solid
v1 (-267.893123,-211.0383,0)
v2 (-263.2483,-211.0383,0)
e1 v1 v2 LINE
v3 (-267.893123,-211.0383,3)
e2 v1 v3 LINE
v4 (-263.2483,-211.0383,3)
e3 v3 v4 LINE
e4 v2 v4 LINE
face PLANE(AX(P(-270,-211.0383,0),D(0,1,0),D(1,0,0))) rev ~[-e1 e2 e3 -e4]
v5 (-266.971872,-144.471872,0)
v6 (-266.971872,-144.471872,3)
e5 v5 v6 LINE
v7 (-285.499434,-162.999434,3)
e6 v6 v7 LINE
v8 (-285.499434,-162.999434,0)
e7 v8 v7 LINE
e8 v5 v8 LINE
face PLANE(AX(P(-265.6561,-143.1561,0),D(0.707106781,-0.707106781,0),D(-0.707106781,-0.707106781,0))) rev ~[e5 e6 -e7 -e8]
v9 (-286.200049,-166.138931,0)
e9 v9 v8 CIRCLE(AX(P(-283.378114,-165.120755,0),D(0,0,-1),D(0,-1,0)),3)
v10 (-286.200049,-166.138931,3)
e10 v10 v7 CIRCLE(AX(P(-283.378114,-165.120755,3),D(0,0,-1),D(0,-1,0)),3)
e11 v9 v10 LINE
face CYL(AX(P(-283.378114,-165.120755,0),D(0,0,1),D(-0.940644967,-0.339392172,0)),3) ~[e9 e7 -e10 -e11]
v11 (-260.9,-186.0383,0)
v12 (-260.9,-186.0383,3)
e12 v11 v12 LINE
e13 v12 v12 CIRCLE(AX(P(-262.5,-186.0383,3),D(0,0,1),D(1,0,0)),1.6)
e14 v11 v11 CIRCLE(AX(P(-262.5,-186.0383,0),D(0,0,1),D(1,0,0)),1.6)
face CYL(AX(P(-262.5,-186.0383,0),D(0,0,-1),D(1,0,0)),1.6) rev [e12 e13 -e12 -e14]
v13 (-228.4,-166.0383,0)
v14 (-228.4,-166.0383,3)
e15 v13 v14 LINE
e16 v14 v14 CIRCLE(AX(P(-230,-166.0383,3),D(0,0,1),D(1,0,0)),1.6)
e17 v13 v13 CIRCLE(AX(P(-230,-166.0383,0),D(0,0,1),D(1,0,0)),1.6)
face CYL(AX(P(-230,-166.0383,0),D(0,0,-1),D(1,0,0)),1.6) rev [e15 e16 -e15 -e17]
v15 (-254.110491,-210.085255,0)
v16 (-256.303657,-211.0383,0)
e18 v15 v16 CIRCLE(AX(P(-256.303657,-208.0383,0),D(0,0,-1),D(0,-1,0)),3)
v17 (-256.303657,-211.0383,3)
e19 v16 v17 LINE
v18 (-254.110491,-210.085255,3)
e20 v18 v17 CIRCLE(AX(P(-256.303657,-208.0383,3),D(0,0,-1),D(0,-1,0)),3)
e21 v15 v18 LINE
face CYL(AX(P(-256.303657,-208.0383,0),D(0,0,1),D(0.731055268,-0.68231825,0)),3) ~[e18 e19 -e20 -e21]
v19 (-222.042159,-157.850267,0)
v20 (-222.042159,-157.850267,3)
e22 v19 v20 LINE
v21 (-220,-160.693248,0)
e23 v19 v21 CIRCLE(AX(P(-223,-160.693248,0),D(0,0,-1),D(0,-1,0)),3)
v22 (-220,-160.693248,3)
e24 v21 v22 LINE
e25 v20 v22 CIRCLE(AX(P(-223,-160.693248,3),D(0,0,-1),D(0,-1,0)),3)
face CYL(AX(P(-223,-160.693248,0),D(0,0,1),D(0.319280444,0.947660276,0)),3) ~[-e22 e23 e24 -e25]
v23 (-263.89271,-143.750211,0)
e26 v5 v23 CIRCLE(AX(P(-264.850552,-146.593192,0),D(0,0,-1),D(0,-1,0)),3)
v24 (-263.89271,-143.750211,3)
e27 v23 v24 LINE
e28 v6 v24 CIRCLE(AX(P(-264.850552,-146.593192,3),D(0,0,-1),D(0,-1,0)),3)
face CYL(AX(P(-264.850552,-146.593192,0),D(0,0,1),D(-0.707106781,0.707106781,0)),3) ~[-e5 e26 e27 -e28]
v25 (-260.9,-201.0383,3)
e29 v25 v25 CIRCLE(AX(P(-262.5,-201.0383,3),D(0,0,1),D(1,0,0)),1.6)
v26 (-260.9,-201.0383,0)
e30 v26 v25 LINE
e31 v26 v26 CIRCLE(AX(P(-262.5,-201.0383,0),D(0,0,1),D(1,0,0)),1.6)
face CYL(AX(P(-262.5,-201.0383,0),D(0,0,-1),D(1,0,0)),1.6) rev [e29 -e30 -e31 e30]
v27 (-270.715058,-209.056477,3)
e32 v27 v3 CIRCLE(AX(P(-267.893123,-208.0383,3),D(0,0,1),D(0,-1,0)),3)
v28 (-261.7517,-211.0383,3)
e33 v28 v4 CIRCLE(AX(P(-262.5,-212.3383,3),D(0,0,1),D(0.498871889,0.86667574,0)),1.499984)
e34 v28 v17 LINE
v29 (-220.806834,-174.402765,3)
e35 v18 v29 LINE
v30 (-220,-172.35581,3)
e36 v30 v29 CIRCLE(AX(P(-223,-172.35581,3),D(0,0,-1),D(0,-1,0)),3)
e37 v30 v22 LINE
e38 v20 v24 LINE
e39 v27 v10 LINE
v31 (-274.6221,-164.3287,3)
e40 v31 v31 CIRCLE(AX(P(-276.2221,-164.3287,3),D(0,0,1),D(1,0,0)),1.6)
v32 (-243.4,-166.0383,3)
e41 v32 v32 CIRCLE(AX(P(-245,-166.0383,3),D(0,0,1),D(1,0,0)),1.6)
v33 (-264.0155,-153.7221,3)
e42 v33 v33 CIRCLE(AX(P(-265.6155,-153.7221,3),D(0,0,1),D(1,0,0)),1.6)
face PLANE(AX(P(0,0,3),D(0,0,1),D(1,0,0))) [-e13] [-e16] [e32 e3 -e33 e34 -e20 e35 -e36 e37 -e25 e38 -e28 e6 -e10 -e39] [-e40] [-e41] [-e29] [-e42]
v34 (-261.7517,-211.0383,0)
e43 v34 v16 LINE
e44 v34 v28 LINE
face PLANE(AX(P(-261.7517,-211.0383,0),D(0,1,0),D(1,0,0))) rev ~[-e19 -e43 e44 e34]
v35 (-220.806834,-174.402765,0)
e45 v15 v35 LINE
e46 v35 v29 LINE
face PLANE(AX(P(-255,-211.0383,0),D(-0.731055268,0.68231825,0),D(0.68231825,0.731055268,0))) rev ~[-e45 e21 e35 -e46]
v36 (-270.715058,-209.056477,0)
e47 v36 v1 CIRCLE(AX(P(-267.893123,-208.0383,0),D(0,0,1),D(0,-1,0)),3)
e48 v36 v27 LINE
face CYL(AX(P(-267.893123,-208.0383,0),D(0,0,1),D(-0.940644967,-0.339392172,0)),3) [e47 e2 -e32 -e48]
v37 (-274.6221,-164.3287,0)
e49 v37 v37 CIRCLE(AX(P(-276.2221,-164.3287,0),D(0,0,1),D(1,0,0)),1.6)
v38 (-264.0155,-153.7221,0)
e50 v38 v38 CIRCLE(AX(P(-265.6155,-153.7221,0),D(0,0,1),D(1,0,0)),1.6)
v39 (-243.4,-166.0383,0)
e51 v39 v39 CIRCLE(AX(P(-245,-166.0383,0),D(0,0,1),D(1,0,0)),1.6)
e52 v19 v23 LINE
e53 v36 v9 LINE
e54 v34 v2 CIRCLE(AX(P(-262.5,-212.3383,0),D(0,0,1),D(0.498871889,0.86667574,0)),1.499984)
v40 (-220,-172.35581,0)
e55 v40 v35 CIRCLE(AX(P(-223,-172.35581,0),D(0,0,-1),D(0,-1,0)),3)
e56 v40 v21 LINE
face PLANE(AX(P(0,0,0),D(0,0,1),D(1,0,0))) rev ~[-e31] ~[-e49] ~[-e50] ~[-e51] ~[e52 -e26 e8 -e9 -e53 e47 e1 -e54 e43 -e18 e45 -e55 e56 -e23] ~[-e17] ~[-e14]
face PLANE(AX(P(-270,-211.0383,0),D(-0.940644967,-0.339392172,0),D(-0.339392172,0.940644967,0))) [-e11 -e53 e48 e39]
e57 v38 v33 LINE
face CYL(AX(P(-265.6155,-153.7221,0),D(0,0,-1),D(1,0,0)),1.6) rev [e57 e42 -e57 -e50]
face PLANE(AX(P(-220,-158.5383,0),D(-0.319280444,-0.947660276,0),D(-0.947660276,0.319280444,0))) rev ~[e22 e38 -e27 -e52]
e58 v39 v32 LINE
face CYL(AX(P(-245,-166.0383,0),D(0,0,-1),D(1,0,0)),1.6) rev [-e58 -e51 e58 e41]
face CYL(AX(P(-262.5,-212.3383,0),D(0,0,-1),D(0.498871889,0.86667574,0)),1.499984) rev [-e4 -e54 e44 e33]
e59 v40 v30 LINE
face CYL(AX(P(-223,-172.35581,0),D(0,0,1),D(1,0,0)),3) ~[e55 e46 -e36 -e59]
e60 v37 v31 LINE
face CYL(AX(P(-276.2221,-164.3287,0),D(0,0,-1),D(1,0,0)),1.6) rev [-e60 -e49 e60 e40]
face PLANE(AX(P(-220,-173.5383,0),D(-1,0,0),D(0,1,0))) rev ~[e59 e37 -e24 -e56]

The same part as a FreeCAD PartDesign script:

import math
import FreeCAD as App
import Part
import Sketcher

V = App.Vector
Q = App.Units.Quantity


def edges_at(feature, points):
    """Names of the edges that pass closest to the given points."""
    edges = feature.Shape.Edges
    near = lambda p: min(range(len(edges)), key=lambda i: edges[i].distToShape(Part.Vertex(*p))[0])
    return sorted({f"Edge{near(p) + 1}" for p in points})

doc = App.newDocument("Part")
body = doc.addObject("PartDesign::Body", "Body")

sketch1 = body.newObject("Sketcher::SketchObject", "Sketch")
sketch1.AttachmentSupport = (doc.getObject("XY_Plane"), [""])
sketch1.MapMode = "FlatFace"
sketch1.addGeometry([
    Part.LineSegment(V(-286.8, -164.3, 0), V(-270, -211, 0)),
    Part.LineSegment(V(-270, -211, 0), V(-263.2, -211, 0)),
    Part.ArcOfCircle(Part.Circle(V(-262.5, -212.3, 0), V(0, 0, 1), 1.5), math.radians(60), math.radians(120)),
    Part.LineSegment(V(-261.8, -211, 0), V(-255, -211, 0)),
    Part.LineSegment(V(-255, -211, 0), V(-220, -173.5, 0)),
    Part.LineSegment(V(-220, -173.5, 0), V(-220, -158.5, 0)),
    Part.LineSegment(V(-220, -158.5, 0), V(-265.7, -143.2, 0)),
    Part.LineSegment(V(-265.7, -143.2, 0), V(-286.8, -164.3, 0)),
    Part.Circle(V(-262.5, -201, 0), V(0, 0, 1), 1.6),
    Part.Circle(V(-262.5, -186, 0), V(0, 0, 1), 1.6),
    Part.Circle(V(-276.2, -164.3, 0), V(0, 0, 1), 1.6),
    Part.Circle(V(-245, -166, 0), V(0, 0, 1), 1.6),
    Part.Circle(V(-265.6, -153.7, 0), V(0, 0, 1), 1.6),
    Part.Circle(V(-230, -166, 0), V(0, 0, 1), 1.6),
], False)
sketch1.addConstraint([
    Sketcher.Constraint("Coincident", 0, 2, 1, 1),
    Sketcher.Constraint("Coincident", 1, 2, 2, 2),
    Sketcher.Constraint("Coincident", 2, 1, 3, 1),
    Sketcher.Constraint("Coincident", 3, 2, 4, 1),
    Sketcher.Constraint("Coincident", 4, 2, 5, 1),
    Sketcher.Constraint("Coincident", 5, 2, 6, 1),
    Sketcher.Constraint("Coincident", 6, 2, 7, 1),
    Sketcher.Constraint("Coincident", 7, 2, 0, 1),
    Sketcher.Constraint("Horizontal", 1),
    Sketcher.Constraint("Horizontal", 3),
    Sketcher.Constraint("Vertical", 5),
    Sketcher.Constraint("Equal", 8, 9),
    Sketcher.Constraint("Equal", 9, 10),
    Sketcher.Constraint("Equal", 10, 11),
    Sketcher.Constraint("Equal", 11, 12),
    Sketcher.Constraint("Equal", 12, 13),
    Sketcher.Constraint("Horizontal", 11, 3, 13, 3),
    Sketcher.Constraint("Horizontal", 1, 2, 2, 1),
    Sketcher.Constraint("Vertical", 2, 3, 8, 3),
    Sketcher.Constraint("Vertical", 8, 3, 9, 3),
    Sketcher.Constraint("Equal", 1, 3),
    Sketcher.Constraint("Diameter", 8, 3.2),
    Sketcher.Constraint("DistanceY", 5, 1, 5, 2, 15.0),
    Sketcher.Constraint("Angle", 7, Q("-135 deg")),
    Sketcher.Constraint("DistanceY", 8, 3, 9, 3, 15.0),
    Sketcher.Constraint("DistanceY", 8, 3, 11, 3, 35.0),
    Sketcher.Constraint("DistanceX", 11, 3, 13, 3, 15.0),
    Sketcher.Constraint("DistanceY", 0, 2, 8, 3, 10.0),
    Sketcher.Constraint("DistanceX", 0, 2, 3, 2, 15.0),
    Sketcher.Constraint("DistanceX", 13, 3, 4, 2, 10.0),
    Sketcher.Constraint("Radius", 2, 1.5),
    Sketcher.Constraint("DistanceY", 4, 2, 13, 3, 7.5),
    Sketcher.Constraint("DistanceX", 11, 3, -1, 1, 245.0),
    Sketcher.Constraint("DistanceX", 0, 2, -1, 1, 270.0),
    Sketcher.Constraint("Angle", 0, Q("-70.1602 deg")),
    Sketcher.Constraint("Angle", 6, Q("161.3806 deg")),
    Sketcher.Constraint("DistanceY", 2, 3, 8, 3, 11.3),
    Sketcher.Constraint("Distance", 7, 29.968),
    Sketcher.Constraint("DistanceX", 10, 3, -1, 1, 276.222),
    Sketcher.Constraint("DistanceY", 12, 3, -1, 1, 153.722),
    Sketcher.Constraint("DistanceY", 6, 2, -1, 1, 143.156),
    Sketcher.Constraint("DistanceY", 7, 2, 10, 3, 0.018),
    Sketcher.Constraint("DistanceX", 12, 3, -1, 1, 265.6155),
])
pad1 = body.newObject("PartDesign::Pad", "Pad")
pad1.Profile = sketch1
pad1.Length = 3
doc.recompute()

fillet = body.newObject("PartDesign::Fillet", "Fillet")
fillet.Base = (pad1, edges_at(pad1, [
    (-265.656, -143.156, 1.5),
    (-286.847, -164.347, 1.5),
    (-270, -211.038, 1.5),
    (-255, -211.038, 1.5),
    (-220, -173.538, 1.5),
    (-220, -158.538, 1.5),
]))
fillet.Radius = 3

doc.recompute()
